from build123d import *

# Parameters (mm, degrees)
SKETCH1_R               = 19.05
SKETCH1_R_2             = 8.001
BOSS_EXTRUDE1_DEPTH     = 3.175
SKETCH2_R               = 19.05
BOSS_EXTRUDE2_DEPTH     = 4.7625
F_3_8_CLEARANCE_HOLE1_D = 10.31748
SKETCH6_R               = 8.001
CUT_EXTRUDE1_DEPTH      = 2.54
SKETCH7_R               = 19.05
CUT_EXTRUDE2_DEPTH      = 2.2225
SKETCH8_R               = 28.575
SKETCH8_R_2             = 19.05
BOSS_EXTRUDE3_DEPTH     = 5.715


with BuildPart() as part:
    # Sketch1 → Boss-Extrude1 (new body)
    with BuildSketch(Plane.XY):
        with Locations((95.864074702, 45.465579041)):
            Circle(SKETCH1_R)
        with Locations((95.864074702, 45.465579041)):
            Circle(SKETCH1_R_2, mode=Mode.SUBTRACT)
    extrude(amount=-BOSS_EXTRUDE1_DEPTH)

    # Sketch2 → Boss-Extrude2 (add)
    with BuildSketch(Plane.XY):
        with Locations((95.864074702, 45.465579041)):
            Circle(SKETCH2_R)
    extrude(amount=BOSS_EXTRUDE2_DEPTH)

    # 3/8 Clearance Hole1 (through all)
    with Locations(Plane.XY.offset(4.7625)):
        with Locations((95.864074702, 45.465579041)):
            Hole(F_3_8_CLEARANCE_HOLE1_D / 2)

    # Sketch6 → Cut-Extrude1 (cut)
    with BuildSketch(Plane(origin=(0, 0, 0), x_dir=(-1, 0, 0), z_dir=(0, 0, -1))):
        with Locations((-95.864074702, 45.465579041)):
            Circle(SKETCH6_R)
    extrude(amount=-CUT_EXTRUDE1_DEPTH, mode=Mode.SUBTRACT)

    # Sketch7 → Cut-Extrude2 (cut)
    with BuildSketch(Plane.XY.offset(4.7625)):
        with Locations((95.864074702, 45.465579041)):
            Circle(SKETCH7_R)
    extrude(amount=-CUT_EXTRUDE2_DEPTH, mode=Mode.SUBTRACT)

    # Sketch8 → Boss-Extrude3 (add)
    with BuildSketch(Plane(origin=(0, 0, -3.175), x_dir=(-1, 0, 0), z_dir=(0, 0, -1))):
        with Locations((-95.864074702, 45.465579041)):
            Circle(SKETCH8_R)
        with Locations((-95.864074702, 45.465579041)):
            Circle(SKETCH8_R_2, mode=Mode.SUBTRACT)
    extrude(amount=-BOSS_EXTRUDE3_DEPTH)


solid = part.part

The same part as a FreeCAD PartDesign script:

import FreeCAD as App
import Part
import Sketcher
from FreeCAD import Vector
Q = App.Units.Quantity

doc = App.newDocument("Part")
body = doc.addObject("PartDesign::Body", "Body")

# Sketch on XY plane
sketch1 = body.newObject("Sketcher::SketchObject", "Sketch")
sketch1.AttachmentSupport = (doc.getObject("XY_Plane"), [""])
sketch1.MapMode = "FlatFace"
sketch1.addGeometry(Part.Circle(Vector(96, 45, 0), Vector(0, 0, 1), 19), False)
sketch1.addGeometry(Part.Circle(Vector(96, 45, 0), Vector(0, 0, 1), 8), False)
sketch1.addConstraint(Sketcher.Constraint("Coincident", 1, 3, 0, 3))
sketch1.addConstraint(Sketcher.Constraint("Diameter", 0, Q("1.5 in")))
sketch1.addConstraint(Sketcher.Constraint("Diameter", 1, Q("0.63 in")))
sketch1.addConstraint(Sketcher.Constraint("DistanceY", -1, 1, 0, 3, Q("45.465579 mm")))
sketch1.addConstraint(Sketcher.Constraint("DistanceX", -1, 1, 0, 3, Q("95.864075 mm")))
pad1 = body.newObject("PartDesign::Pad", "Pad")
pad1.Profile = sketch1
pad1.Length = Q("0.125 in")
pad1.Reversed = True

# Sketch on XY plane
sketch2 = body.newObject("Sketcher::SketchObject", "Sketch001")
sketch2.AttachmentSupport = (doc.getObject("XY_Plane"), [""])
sketch2.MapMode = "FlatFace"
sketch2.addGeometry(Part.Circle(Vector(96, 45, 0), Vector(0, 0, 1), 19), False)
sketch2.addConstraint(Sketcher.Constraint("Diameter", 0, Q("1.5 in")))
sketch2.addConstraint(Sketcher.Constraint("DistanceY", -1, 1, 0, 3, Q("45.465579 mm")))
sketch2.addConstraint(Sketcher.Constraint("DistanceX", -1, 1, 0, 3, Q("95.864075 mm")))
pad2 = body.newObject("PartDesign::Pad", "Pad001")
pad2.Profile = sketch2
pad2.Length = Q("0.1875 in")

# Sketch on XY plane
sketch3 = body.newObject("Sketcher::SketchObject", "Sketch002")
sketch3.AttachmentSupport = (doc.getObject("XY_Plane"), [""])
sketch3.MapMode = "FlatFace"
sketch3.AttachmentOffset = App.Placement(Vector(0, 0, 0.1875 * 25.4), App.Rotation())
sketch3.addGeometry(Part.Circle(Vector(96, 45, 0), Vector(0, 0, 1), 5), False)
sketch3.addConstraint(Sketcher.Constraint("Diameter", 0, Q("0.4062 in")))
sketch3.addConstraint(Sketcher.Constraint("DistanceY", -1, 1, 0, 3, Q("45.465579 mm")))
sketch3.addConstraint(Sketcher.Constraint("DistanceX", -1, 1, 0, 3, Q("95.864075 mm")))
doc.recompute()
hole = body.newObject("PartDesign::Hole", "Hole")
hole.Profile = sketch3
hole.ThreadType = "None"
hole.Diameter = Q("0.4062 in")
hole.DepthType = "ThroughAll"

# Sketch on XY plane
sketch4 = body.newObject("Sketcher::SketchObject", "Sketch003")
sketch4.AttachmentSupport = (doc.getObject("XY_Plane"), [""])
sketch4.MapMode = "FlatFace"
sketch4.addGeometry(Part.Circle(Vector(96, 45, 0), Vector(0, 0, 1), 8), False)
sketch4.addConstraint(Sketcher.Constraint("Diameter", 0, Q("0.63 in")))
sketch4.addConstraint(Sketcher.Constraint("DistanceY", -1, 1, 0, 3, Q("45.465579 mm")))
sketch4.addConstraint(Sketcher.Constraint("DistanceX", -1, 1, 0, 3, Q("95.864075 mm")))
pocket1 = body.newObject("PartDesign::Pocket", "Pocket")
pocket1.Profile = sketch4
pocket1.Length = Q("0.1 in")
pocket1.Reversed = True

# Sketch on XY plane
sketch5 = body.newObject("Sketcher::SketchObject", "Sketch004")
sketch5.AttachmentSupport = (doc.getObject("XY_Plane"), [""])
sketch5.MapMode = "FlatFace"
sketch5.AttachmentOffset = App.Placement(Vector(0, 0, 0.1875 * 25.4), App.Rotation())
sketch5.addGeometry(Part.Circle(Vector(96, 45, 0), Vector(0, 0, 1), 19), False)
sketch5.addConstraint(Sketcher.Constraint("Diameter", 0, Q("1.5 in")))
sketch5.addConstraint(Sketcher.Constraint("DistanceY", -1, 1, 0, 3, Q("45.465579 mm")))
sketch5.addConstraint(Sketcher.Constraint("DistanceX", -1, 1, 0, 3, Q("95.864075 mm")))
pocket2 = body.newObject("PartDesign::Pocket", "Pocket001")
pocket2.Profile = sketch5
pocket2.Length = Q("0.0875 in")

# Sketch on XY plane
sketch6 = body.newObject("Sketcher::SketchObject", "Sketch005")
sketch6.AttachmentSupport = (doc.getObject("XY_Plane"), [""])
sketch6.MapMode = "FlatFace"
sketch6.AttachmentOffset = App.Placement(Vector(0, 0, -0.125 * 25.4), App.Rotation())
sketch6.addGeometry(Part.Circle(Vector(96, 45, 0), Vector(0, 0, 1), 29), False)
sketch6.addGeometry(Part.Circle(Vector(96, 45, 0), Vector(0, 0, 1), 19), False)
sketch6.addConstraint(Sketcher.Constraint("Coincident", 1, 3, 0, 3))
sketch6.addConstraint(Sketcher.Constraint("Diameter", 1, Q("1.5 in")))
sketch6.addConstraint(Sketcher.Constraint("Diameter", 0, Q("2.25 in")))
sketch6.addConstraint(Sketcher.Constraint("DistanceY", -1, 1, 0, 3, Q("45.465579 mm")))
sketch6.addConstraint(Sketcher.Constraint("DistanceX", -1, 1, 0, 3, Q("95.864075 mm")))
pad3 = body.newObject("PartDesign::Pad", "Pad002")
pad3.Profile = sketch6
pad3.Length = Q("0.225 in")

doc.recompute()
